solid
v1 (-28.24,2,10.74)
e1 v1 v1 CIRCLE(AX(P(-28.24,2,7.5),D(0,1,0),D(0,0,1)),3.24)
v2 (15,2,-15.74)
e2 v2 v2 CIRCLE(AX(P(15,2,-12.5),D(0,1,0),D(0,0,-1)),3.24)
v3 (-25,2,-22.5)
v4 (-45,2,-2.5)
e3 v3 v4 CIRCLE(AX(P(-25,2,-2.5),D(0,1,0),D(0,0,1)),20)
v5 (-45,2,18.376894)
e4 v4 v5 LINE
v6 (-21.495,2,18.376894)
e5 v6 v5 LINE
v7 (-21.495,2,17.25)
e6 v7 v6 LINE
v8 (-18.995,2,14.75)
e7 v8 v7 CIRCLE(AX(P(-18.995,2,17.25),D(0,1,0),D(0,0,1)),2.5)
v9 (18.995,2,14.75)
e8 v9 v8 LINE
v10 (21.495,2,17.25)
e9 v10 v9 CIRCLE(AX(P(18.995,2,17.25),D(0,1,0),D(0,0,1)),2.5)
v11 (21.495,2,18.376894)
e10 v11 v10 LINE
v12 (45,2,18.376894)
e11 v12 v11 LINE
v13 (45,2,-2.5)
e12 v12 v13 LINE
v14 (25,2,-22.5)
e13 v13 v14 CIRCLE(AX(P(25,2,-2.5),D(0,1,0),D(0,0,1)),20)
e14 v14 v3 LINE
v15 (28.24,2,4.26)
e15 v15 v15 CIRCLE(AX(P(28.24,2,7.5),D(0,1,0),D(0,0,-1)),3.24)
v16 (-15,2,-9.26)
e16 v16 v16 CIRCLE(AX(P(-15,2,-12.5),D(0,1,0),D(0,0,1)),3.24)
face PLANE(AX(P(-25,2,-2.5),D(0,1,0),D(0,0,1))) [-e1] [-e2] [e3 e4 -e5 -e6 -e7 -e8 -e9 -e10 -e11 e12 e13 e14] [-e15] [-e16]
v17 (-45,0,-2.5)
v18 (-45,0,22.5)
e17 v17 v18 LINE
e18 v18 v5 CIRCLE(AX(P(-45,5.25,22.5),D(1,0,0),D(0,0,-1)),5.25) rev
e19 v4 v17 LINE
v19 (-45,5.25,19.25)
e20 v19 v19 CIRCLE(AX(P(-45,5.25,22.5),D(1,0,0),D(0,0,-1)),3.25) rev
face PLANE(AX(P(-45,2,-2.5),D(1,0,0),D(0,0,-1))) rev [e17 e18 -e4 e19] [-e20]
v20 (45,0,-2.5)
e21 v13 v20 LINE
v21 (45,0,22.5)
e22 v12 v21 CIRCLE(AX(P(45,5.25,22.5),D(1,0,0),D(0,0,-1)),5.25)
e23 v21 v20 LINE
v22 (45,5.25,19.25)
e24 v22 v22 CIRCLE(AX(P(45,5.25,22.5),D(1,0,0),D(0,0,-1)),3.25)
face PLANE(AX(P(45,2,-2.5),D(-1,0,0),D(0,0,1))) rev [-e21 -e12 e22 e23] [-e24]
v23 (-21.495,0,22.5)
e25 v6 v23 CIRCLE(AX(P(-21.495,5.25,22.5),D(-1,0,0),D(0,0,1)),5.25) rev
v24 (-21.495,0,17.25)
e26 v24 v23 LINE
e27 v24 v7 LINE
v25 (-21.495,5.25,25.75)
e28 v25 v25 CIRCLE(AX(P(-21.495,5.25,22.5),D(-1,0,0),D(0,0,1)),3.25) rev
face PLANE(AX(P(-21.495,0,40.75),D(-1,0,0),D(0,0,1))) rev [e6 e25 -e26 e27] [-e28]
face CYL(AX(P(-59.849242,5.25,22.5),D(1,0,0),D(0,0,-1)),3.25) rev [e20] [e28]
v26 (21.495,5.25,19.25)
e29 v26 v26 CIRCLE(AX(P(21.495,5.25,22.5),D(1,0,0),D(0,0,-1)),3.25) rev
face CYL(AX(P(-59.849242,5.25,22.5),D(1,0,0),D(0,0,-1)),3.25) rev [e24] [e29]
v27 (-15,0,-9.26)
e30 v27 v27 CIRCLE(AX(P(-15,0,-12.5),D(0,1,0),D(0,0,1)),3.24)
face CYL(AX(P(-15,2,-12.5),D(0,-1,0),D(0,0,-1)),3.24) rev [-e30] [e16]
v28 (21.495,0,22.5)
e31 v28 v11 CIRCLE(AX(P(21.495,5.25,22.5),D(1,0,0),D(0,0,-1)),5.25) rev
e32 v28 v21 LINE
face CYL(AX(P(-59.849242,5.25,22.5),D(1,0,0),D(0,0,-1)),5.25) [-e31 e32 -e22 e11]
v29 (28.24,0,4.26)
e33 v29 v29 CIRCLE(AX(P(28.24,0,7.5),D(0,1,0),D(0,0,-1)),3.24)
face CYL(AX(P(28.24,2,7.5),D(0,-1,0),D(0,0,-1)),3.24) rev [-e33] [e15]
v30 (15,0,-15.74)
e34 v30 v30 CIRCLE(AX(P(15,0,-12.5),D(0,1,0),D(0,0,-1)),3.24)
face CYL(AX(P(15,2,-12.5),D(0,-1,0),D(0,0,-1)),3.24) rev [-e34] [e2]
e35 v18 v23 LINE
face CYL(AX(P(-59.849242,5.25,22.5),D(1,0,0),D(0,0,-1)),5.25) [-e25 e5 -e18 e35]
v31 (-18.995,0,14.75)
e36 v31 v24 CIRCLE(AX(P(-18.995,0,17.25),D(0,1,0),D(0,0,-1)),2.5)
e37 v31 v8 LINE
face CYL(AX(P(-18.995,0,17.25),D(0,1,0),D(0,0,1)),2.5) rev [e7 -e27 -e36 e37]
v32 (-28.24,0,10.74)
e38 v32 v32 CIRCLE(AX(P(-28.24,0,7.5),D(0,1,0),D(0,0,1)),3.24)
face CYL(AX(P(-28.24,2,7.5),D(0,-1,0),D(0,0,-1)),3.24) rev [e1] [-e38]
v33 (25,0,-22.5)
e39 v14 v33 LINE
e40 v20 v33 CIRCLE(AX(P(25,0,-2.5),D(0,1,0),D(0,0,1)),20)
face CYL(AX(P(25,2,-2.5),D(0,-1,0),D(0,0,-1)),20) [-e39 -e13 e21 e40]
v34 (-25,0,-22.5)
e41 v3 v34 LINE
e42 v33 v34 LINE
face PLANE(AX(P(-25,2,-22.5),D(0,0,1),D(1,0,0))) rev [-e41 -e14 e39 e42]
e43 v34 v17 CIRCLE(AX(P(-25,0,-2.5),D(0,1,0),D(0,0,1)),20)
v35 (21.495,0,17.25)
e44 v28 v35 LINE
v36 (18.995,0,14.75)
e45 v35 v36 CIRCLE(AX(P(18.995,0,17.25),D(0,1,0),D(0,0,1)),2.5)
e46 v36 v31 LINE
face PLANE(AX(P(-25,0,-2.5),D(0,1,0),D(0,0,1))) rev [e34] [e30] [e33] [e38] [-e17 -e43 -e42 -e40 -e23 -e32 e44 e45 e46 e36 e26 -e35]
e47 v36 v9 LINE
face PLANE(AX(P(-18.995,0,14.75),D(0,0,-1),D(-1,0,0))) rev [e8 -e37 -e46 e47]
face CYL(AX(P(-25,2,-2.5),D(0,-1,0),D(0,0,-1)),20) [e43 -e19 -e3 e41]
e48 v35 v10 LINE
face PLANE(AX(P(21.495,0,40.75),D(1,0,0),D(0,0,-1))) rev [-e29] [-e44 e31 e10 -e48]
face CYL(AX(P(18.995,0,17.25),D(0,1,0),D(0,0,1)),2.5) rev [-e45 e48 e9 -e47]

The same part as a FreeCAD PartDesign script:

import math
import FreeCAD as App
import Part
import Sketcher
from FreeCAD import Vector

doc = App.newDocument("Part")
body = doc.addObject("PartDesign::Body", "Body")

# Sketch on XZ plane
sketch1 = doc.addObject("Sketcher::SketchObject", "Sketch")
body.addObject(sketch1)
sketch1.AttachmentSupport = (doc.XZ_Plane, [""])
sketch1.MapMode = "FlatFace"
sketch1.addGeometry([
    Part.LineSegment(Vector(25, -22.5, 0), Vector(-25, -22.5, 0)),  # 0
    Part.ArcOfCircle(Part.Circle(Vector(-25, -2.5, 0), Vector(0, 0, 1), 20), math.radians(180), math.radians(270)),  # 1
    Part.LineSegment(Vector(-45, -2.5, 0), Vector(-45, 22.5, 0)),  # 2
    Part.LineSegment(Vector(-45, 22.5, 0), Vector(45, 22.5, 0)),  # 3
    Part.LineSegment(Vector(45, 22.5, 0), Vector(45, -2.5, 0)),  # 4
    Part.ArcOfCircle(Part.Circle(Vector(25, -2.5, 0), Vector(0, 0, 1), 20), math.radians(-90), math.radians(0)),  # 5
    Part.Circle(Vector(28.2, 7.5, 0), Vector(0, 0, 1), 3.2),  # 6
    Part.Circle(Vector(-28.2, 7.5, 0), Vector(0, 0, 1), 3.2),  # 7
    Part.Circle(Vector(15, -12.5, 0), Vector(0, 0, 1), 3.2),  # 8
    Part.Circle(Vector(-15, -12.5, 0), Vector(0, 0, 1), 3.2),  # 9
], False)
sketch1.addConstraint([
    Sketcher.Constraint("Tangent", 0, 2, 1, 2),
    Sketcher.Constraint("Tangent", 1, 1, 2, 1),
    Sketcher.Constraint("Coincident", 2, 2, 3, 1),
    Sketcher.Constraint("Coincident", 3, 2, 4, 1),
    Sketcher.Constraint("Tangent", 4, 2, 5, 2),
    Sketcher.Constraint("Tangent", 5, 1, 0, 1),
    Sketcher.Constraint("Horizontal", 0),
    Sketcher.Constraint("Vertical", 2),
    Sketcher.Constraint("Horizontal", 3),
    Sketcher.Constraint("Vertical", 4),
    Sketcher.Constraint("Equal", 1, 5),
    Sketcher.Constraint("Equal", 6, 7),
    Sketcher.Constraint("Equal", 7, 8),
    Sketcher.Constraint("Equal", 8, 9),
    Sketcher.Constraint("Symmetric", 6, 3, 7, 3, -2),
    Sketcher.Constraint("Symmetric", 8, 3, 9, 3, -2),
    Sketcher.Constraint("Radius", 1, 20.0),
    Sketcher.Constraint("Diameter", 6, 6.48),
    Sketcher.Constraint("DistanceX", 0, 2, 0, 1, 50.0),
    Sketcher.Constraint("DistanceY", 2, 1, 2, 2, 25.0),
    Sketcher.Constraint("DistanceX", 1, 3, -1, 1, 25.0),
    Sketcher.Constraint("DistanceX", -1, 1, 8, 3, 15.0),
    Sketcher.Constraint("DistanceY", 5, 3, 6, 3, 10.0),
    Sketcher.Constraint("DistanceY", 8, 3, 5, 3, 10.0),
    Sketcher.Constraint("DistanceY", 1, 3, -1, 1, 2.5),
    Sketcher.Constraint("DistanceX", -1, 1, 6, 3, 28.24),
])
pad1 = doc.addObject("PartDesign::Pad", "Pad")
body.addObject(pad1)
pad1.Profile = sketch1
pad1.Length = 2
pad1.Reversed = True

# Sketch on YZ plane
sketch2 = doc.addObject("Sketcher::SketchObject", "Sketch001")
body.addObject(sketch2)
sketch2.AttachmentSupport = (doc.YZ_Plane, [""])
sketch2.MapMode = "FlatFace"
sketch2.AttachmentOffset = App.Placement(Vector(0, 0, 45), App.Rotation())
sketch2.addGeometry([
    Part.Circle(Vector(5.2, 22.5, 0), Vector(0, 0, 1), 5.2),
    Part.Circle(Vector(5.2, 22.5, 0), Vector(0, 0, 1), 3.2),
], False)
sketch2.addConstraint([
    Sketcher.Constraint("Coincident", 1, 3, 0, 3),
    Sketcher.Constraint("Diameter", 0, 10.5),
    Sketcher.Constraint("Diameter", 1, 6.5),
    Sketcher.Constraint("DistanceY", -1, 1, 0, 3, 22.5),
    Sketcher.Constraint("DistanceX", -1, 1, 0, 3, 5.25),
])
pad2 = doc.addObject("PartDesign::Pad", "Pad001")
body.addObject(pad2)
pad2.Profile = sketch2
pad2.Length = 90
pad2.Reversed = True

# Sketch on XZ plane
sketch3 = doc.addObject("Sketcher::SketchObject", "Sketch002")
body.addObject(sketch3)
sketch3.AttachmentSupport = (doc.XZ_Plane, [""])
sketch3.MapMode = "FlatFace"
sketch3.AttachmentOffset = App.Placement(Vector(0, 0, -2), App.Rotation())
sketch3.addGeometry([
    Part.LineSegment(Vector(-21.5, 40.8, 0), Vector(21.5, 40.8, 0)),  # 0
    Part.LineSegment(Vector(21.5, 40.8, 0), Vector(21.5, 17.2, 0)),  # 1
    Part.ArcOfCircle(Part.Circle(Vector(19, 17.2, 0), Vector(0, 0, 1), 2.5), math.radians(-90), math.radians(0)),  # 2
    Part.LineSegment(Vector(19, 14.8, 0), Vector(-19, 14.8, 0)),  # 3
    Part.ArcOfCircle(Part.Circle(Vector(-19, 17.2, 0), Vector(0, 0, 1), 2.5), math.radians(180), math.radians(270)),  # 4
    Part.LineSegment(Vector(-21.5, 17.2, 0), Vector(-21.5, 40.8, 0)),  # 5
], False)
sketch3.addConstraint([
    Sketcher.Constraint("Coincident", 0, 2, 1, 1),
    Sketcher.Constraint("Tangent", 1, 2, 2, 2),
    Sketcher.Constraint("Tangent", 2, 1, 3, 1),
    Sketcher.Constraint("Tangent", 3, 2, 4, 2),
    Sketcher.Constraint("Tangent", 4, 1, 5, 1),
    Sketcher.Constraint("Coincident", 5, 2, 0, 1),
    Sketcher.Constraint("Horizontal", 0),
    Sketcher.Constraint("Vertical", 1),
    Sketcher.Constraint("Horizontal", 3),
    Sketcher.Constraint("Vertical", 5),
    Sketcher.Constraint("Equal", 2, 4),
    Sketcher.Constraint("Radius", 2, 2.5),
    Sketcher.Constraint("DistanceY", 1, 2, 1, 1, 23.5),
    Sketcher.Constraint("DistanceX", 0, 1, 0, 2, 42.99),
    Sketcher.Constraint("DistanceY", -1, 1, 2, 3, 17.25),
    Sketcher.Constraint("DistanceX", -1, 1, 2, 3, 18.995),
])
pocket1 = doc.addObject("PartDesign::Pocket", "Pocket")
body.addObject(pocket1)
pocket1.Profile = sketch3
pocket1.Type = "ThroughAll"
pocket1.Midplane = True

doc.recompute()
